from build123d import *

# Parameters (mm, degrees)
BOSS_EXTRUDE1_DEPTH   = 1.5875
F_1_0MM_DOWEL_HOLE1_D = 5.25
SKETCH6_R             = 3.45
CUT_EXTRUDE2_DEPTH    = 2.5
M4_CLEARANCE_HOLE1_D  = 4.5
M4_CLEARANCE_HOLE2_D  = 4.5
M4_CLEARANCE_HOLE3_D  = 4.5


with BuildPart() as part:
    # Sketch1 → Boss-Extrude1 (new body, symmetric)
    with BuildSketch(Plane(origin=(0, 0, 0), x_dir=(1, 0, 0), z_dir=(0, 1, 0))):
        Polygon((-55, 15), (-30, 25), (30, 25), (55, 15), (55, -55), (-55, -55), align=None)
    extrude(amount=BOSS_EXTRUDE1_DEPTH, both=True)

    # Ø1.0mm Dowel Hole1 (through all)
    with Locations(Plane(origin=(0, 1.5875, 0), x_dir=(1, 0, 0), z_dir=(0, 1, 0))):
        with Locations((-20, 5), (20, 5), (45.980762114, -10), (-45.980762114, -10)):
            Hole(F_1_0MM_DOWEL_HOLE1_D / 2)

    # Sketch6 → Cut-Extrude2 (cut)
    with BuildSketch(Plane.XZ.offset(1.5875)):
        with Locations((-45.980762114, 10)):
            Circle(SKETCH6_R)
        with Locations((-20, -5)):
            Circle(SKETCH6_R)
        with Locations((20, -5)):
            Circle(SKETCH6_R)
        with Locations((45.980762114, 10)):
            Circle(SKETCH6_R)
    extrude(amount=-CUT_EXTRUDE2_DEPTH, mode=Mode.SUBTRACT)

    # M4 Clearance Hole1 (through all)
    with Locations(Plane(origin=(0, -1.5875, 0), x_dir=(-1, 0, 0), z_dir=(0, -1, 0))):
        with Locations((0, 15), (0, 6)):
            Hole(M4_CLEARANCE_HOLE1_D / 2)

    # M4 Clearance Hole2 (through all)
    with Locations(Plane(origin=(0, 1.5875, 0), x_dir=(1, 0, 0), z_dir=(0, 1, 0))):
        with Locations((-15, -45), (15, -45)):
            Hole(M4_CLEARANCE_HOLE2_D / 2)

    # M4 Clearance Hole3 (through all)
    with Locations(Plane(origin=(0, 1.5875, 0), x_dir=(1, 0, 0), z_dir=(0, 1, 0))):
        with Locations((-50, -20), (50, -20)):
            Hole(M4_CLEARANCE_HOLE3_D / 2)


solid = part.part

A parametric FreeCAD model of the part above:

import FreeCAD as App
import Part
import Sketcher

V = App.Vector
Q = App.Units.Quantity


def add_polygon(sketch, points):
    """Adds a closed chain of lines whose ends are joined by coincident constraints."""
    first, n = sketch.GeometryCount, len(points)
    for a, b in zip(points, points[1:] + points[:1]):
        sketch.addGeometry(Part.LineSegment(App.Vector(*a, 0), App.Vector(*b, 0)), False)
    for i in range(n):
        sketch.addConstraint(Sketcher.Constraint("Coincident", first + i, 2, first + (i + 1) % n, 1))

doc = App.newDocument("Part")
body = doc.addObject("PartDesign::Body", "Body")

sketch1 = body.newObject("Sketcher::SketchObject", "Sketch")
sketch1.AttachmentSupport = (doc.getObject("XZ_Plane"), [""])
sketch1.MapMode = "FlatFace"
add_polygon(sketch1, [(-30, -25), (-55, -15), (-55, 55), (55, 55), (55, -15), (30, -25)])
sketch1.addConstraint([
    Sketcher.Constraint("Vertical", 1),
    Sketcher.Constraint("Horizontal", 2),
    Sketcher.Constraint("Vertical", 3),
    Sketcher.Constraint("Horizontal", 5),
    Sketcher.Constraint("Symmetric", 0, 2, 3, 2, -2),
    Sketcher.Constraint("Equal", 0, 4),
    Sketcher.Constraint("DistanceX", 2, 1, 2, 2, Q("110 mm")),
    Sketcher.Constraint("DistanceX", 5, 2, 5, 1, Q("60 mm")),
    Sketcher.Constraint("DistanceY", 1, 1, 1, 2, Q("70 mm")),
    Sketcher.Constraint("DistanceY", 0, 2, -1, 1, Q("15 mm")),
    Sketcher.Constraint("DistanceY", 4, 2, -1, 1, Q("25 mm")),
])
pad1 = body.newObject("PartDesign::Pad", "Pad")
pad1.Profile = sketch1
pad1.Length = 3.175
pad1.Midplane = True

sketch2 = body.newObject("Sketcher::SketchObject", "Sketch001")
sketch2.AttachmentSupport = (doc.getObject("XZ_Plane"), [""])
sketch2.MapMode = "FlatFace"
sketch2.AttachmentOffset = App.Placement(V(0, 0, -1.5875), App.Rotation())
sketch2.addGeometry([
    Part.Circle(V(-20, -5, 0), V(0, 0, 1), 2.625),
    Part.Circle(V(20, -5, 0), V(0, 0, 1), 2.625),
    Part.Circle(V(45.980762, 10, 0), V(0, 0, 1), 2.625),
    Part.Circle(V(-45.980762, 10, 0), V(0, 0, 1), 2.625),
], False)
sketch2.addConstraint([
    Sketcher.Constraint("Equal", 0, 1),
    Sketcher.Constraint("Equal", 1, 2),
    Sketcher.Constraint("Equal", 2, 3),
    Sketcher.Constraint("Symmetric", 0, 3, 1, 3, -2),
    Sketcher.Constraint("Symmetric", 2, 3, 3, 3, -2),
    Sketcher.Constraint("Diameter", 0, Q("5.25 mm")),
    Sketcher.Constraint("DistanceX", 0, 3, -1, 1, Q("20 mm")),
    Sketcher.Constraint("DistanceY", 0, 3, -1, 1, Q("5 mm")),
    Sketcher.Constraint("DistanceY", -1, 1, 2, 3, Q("10 mm")),
    Sketcher.Constraint("DistanceX", -1, 1, 2, 3, Q("45.980762 mm")),
])
doc.recompute()
hole = body.newObject("PartDesign::Hole", "Hole")
hole.Profile = sketch2
hole.ThreadType = "None"
hole.Diameter = 5.25
hole.DepthType = "ThroughAll"
hole.Reversed = True

sketch3 = body.newObject("Sketcher::SketchObject", "Sketch002")
sketch3.AttachmentSupport = (doc.getObject("XZ_Plane"), [""])
sketch3.MapMode = "FlatFace"
sketch3.AttachmentOffset = App.Placement(V(0, 0, 1.5875), App.Rotation())
sketch3.addGeometry([
    Part.Circle(V(-45.980762, 10, 0), V(0, 0, 1), 3.45),
    Part.Circle(V(-20, -5, 0), V(0, 0, 1), 3.45),
    Part.Circle(V(20, -5, 0), V(0, 0, 1), 3.45),
    Part.Circle(V(45.980762, 10, 0), V(0, 0, 1), 3.45),
], False)
sketch3.addConstraint([
    Sketcher.Constraint("Equal", 0, 1),
    Sketcher.Constraint("Equal", 1, 2),
    Sketcher.Constraint("Equal", 2, 3),
    Sketcher.Constraint("Symmetric", 1, 3, 2, 3, -2),
    Sketcher.Constraint("Symmetric", 0, 3, 3, 3, -2),
    Sketcher.Constraint("Diameter", 0, Q("6.9 mm")),
    Sketcher.Constraint("DistanceY", -1, 1, 0, 3, Q("10 mm")),
    Sketcher.Constraint("DistanceX", 1, 3, -1, 1, Q("20 mm")),
    Sketcher.Constraint("DistanceY", 1, 3, -1, 1, Q("5 mm")),
    Sketcher.Constraint("DistanceX", 0, 3, -1, 1, Q("45.980762 mm")),
])
pocket1 = body.newObject("PartDesign::Pocket", "Pocket")
pocket1.Profile = sketch3
pocket1.Length = 2.5

sketch4 = body.newObject("Sketcher::SketchObject", "Sketch003")
sketch4.AttachmentSupport = (doc.getObject("XZ_Plane"), [""])
sketch4.MapMode = "FlatFace"
sketch4.AttachmentOffset = App.Placement(V(0, 0, 1.5875), App.Rotation())
sketch4.addGeometry([
    Part.Circle(V(0, -15, 0), V(0, 0, 1), 2.25),
    Part.Circle(V(0, -6, 0), V(0, 0, 1), 2.25),
], False)
sketch4.addConstraint([
    Sketcher.Constraint("Equal", 0, 1),
    Sketcher.Constraint("PointOnObject", 0, 3, -2),
    Sketcher.Constraint("PointOnObject", 1, 3, -2),
    Sketcher.Constraint("Diameter", 0, Q("4.5 mm")),
    Sketcher.Constraint("DistanceY", 0, 3, -1, 1, Q("15 mm")),
    Sketcher.Constraint("DistanceY", 1, 3, -1, 1, Q("6 mm")),
])
doc.recompute()
hole2 = body.newObject("PartDesign::Hole", "Hole001")
hole2.Profile = sketch4
hole2.ThreadType = "None"
hole2.Diameter = 4.5
hole2.DepthType = "ThroughAll"

sketch5 = body.newObject("Sketcher::SketchObject", "Sketch004")
sketch5.AttachmentSupport = (doc.getObject("XZ_Plane"), [""])
sketch5.MapMode = "FlatFace"
sketch5.AttachmentOffset = App.Placement(V(0, 0, -1.5875), App.Rotation())
sketch5.addGeometry([
    Part.Circle(V(-15, 45, 0), V(0, 0, 1), 2.25),
    Part.Circle(V(15, 45, 0), V(0, 0, 1), 2.25),
], False)
sketch5.addConstraint([
    Sketcher.Constraint("Equal", 0, 1),
    Sketcher.Constraint("Symmetric", 0, 3, 1, 3, -2),
    Sketcher.Constraint("Diameter", 0, Q("4.5 mm")),
    Sketcher.Constraint("DistanceX", 0, 3, -1, 1, Q("15 mm")),
    Sketcher.Constraint("DistanceY", -1, 1, 0, 3, Q("45 mm")),
])
doc.recompute()
hole3 = body.newObject("PartDesign::Hole", "Hole002")
hole3.Profile = sketch5
hole3.ThreadType = "None"
hole3.Diameter = 4.5
hole3.DepthType = "ThroughAll"
hole3.Reversed = True

sketch6 = body.newObject("Sketcher::SketchObject", "Sketch005")
sketch6.AttachmentSupport = (doc.getObject("XZ_Plane"), [""])
sketch6.MapMode = "FlatFace"
sketch6.AttachmentOffset = App.Placement(V(0, 0, -1.5875), App.Rotation())
sketch6.addGeometry([
    Part.Circle(V(-50, 20, 0), V(0, 0, 1), 2.25),
    Part.Circle(V(50, 20, 0), V(0, 0, 1), 2.25),
], False)
sketch6.addConstraint([
    Sketcher.Constraint("Equal", 0, 1),
    Sketcher.Constraint("Symmetric", 0, 3, 1, 3, -2),
    Sketcher.Constraint("Diameter", 0, Q("4.5 mm")),
    Sketcher.Constraint("DistanceX", 0, 3, -1, 1, Q("50 mm")),
    Sketcher.Constraint("DistanceY", -1, 1, 0, 3, Q("20 mm")),
])
doc.recompute()
hole4 = body.newObject("PartDesign::Hole", "Hole003")
hole4.Profile = sketch6
hole4.ThreadType = "None"
hole4.Diameter = 4.5
hole4.DepthType = "ThroughAll"
hole4.Reversed = True

doc.recompute()
